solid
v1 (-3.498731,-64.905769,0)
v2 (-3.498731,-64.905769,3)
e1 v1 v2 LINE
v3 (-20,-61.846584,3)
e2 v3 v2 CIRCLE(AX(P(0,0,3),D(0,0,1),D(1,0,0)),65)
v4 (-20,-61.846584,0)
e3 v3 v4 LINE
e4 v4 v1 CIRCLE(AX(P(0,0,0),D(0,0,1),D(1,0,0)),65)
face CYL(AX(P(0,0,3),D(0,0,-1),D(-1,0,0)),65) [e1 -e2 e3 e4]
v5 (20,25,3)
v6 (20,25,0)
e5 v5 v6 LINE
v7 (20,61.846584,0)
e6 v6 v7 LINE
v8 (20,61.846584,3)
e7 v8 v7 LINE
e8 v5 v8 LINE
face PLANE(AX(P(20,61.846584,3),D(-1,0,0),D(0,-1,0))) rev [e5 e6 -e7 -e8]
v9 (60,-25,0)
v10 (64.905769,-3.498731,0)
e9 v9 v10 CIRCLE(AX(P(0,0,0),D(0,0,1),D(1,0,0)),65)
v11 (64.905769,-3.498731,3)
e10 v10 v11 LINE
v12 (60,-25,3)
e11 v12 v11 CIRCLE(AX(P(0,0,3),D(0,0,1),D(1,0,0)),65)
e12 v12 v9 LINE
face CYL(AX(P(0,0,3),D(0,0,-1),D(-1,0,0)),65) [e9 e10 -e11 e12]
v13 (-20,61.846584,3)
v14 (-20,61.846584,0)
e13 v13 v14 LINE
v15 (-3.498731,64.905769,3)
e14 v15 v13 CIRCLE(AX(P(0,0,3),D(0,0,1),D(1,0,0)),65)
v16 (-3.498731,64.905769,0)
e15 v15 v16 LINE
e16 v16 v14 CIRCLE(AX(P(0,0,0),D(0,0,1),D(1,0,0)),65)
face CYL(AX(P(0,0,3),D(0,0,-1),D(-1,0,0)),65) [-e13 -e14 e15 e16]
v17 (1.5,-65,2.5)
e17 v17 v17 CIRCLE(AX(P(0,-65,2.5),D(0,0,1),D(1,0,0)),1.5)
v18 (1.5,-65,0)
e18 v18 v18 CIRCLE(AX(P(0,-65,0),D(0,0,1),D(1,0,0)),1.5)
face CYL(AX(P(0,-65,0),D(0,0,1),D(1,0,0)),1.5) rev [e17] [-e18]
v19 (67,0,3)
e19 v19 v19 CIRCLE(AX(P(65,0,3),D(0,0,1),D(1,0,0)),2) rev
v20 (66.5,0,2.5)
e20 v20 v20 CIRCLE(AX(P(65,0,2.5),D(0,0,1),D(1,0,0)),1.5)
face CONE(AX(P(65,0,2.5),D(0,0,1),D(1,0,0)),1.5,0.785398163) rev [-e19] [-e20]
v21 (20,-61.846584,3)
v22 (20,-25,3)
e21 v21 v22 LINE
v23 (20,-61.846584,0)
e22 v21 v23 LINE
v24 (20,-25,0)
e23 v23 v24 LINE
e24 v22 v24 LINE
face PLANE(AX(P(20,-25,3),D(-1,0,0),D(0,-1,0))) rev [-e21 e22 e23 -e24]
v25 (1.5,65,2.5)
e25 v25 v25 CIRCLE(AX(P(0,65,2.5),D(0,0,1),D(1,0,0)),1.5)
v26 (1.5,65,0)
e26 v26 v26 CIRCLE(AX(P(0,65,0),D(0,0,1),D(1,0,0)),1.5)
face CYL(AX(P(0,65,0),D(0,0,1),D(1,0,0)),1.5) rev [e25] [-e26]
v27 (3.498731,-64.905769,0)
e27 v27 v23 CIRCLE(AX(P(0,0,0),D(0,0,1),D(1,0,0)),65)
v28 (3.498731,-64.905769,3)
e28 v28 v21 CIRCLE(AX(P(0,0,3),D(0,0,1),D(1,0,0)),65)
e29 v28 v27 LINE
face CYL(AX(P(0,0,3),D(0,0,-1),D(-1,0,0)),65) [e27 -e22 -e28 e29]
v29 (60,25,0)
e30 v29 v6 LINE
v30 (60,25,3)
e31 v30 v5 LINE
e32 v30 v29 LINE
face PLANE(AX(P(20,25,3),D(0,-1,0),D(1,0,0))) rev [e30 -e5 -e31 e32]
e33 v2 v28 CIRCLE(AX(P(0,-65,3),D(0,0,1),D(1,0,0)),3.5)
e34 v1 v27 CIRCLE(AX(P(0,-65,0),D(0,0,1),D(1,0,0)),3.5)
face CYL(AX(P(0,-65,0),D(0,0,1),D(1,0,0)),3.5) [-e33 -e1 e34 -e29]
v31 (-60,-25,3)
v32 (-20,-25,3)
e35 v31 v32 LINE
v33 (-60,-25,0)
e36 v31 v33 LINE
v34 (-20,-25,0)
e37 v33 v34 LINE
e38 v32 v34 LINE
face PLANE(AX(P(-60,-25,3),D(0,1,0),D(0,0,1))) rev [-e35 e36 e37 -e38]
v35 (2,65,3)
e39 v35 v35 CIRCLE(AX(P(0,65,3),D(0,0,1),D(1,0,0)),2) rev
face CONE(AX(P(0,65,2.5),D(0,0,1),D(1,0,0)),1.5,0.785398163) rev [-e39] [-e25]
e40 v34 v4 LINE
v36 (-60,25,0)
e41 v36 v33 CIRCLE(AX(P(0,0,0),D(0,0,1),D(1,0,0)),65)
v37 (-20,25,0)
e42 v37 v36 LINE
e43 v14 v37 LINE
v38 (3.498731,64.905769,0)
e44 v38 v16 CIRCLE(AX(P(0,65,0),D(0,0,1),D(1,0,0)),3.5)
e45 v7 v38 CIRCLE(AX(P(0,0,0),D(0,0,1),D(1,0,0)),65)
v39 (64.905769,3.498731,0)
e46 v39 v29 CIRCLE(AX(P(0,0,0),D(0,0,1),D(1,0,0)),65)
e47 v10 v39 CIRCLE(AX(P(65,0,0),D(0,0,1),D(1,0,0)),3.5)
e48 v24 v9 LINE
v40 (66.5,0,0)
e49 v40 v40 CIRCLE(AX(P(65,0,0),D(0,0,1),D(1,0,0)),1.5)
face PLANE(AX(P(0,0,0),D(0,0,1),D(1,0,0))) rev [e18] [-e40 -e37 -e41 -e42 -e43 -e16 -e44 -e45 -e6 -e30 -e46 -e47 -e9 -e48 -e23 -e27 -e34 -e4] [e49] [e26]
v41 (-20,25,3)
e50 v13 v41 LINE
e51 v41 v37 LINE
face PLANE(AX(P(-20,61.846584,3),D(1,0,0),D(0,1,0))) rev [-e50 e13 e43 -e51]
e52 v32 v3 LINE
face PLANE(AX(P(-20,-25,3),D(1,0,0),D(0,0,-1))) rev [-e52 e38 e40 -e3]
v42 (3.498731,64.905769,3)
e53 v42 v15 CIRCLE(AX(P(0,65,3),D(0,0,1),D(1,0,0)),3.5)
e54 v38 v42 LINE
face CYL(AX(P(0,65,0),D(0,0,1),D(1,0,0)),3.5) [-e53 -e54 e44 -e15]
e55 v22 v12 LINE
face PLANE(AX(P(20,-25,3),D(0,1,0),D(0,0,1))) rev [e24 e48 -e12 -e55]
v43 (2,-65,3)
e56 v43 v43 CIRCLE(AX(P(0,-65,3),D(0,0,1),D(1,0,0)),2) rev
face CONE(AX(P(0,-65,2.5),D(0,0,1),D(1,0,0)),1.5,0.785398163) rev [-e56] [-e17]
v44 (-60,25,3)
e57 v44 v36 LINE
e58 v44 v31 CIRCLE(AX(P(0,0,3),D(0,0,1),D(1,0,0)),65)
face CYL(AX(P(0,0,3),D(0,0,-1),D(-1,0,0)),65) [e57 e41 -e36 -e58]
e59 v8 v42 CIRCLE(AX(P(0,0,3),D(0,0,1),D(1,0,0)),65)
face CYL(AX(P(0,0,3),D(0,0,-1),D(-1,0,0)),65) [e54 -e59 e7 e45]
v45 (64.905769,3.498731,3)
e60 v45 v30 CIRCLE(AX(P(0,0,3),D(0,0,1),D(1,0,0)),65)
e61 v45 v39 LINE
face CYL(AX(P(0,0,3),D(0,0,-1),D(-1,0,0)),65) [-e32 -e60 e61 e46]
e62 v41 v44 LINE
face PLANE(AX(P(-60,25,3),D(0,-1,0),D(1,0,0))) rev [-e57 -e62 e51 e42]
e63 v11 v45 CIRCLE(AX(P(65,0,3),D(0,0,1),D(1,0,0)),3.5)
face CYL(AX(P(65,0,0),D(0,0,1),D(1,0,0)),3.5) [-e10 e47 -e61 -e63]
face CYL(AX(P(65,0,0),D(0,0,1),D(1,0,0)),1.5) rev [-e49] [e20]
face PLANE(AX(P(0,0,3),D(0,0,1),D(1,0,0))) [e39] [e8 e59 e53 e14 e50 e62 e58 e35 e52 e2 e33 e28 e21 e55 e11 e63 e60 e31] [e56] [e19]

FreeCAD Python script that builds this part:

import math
import FreeCAD as App
import Part
import Sketcher

V = App.Vector


def edges_at(feature, points):
    """Names of the edges that pass closest to the given points."""
    edges = feature.Shape.Edges
    near = lambda p: min(range(len(edges)), key=lambda i: edges[i].distToShape(Part.Vertex(*p))[0])
    return sorted({f"Edge{near(p) + 1}" for p in points})

doc = App.newDocument("Part")
body = doc.addObject("PartDesign::Body", "Body")

# Sketch on XY plane
sketch1 = body.newObject("Sketcher::SketchObject", "Sketch")
sketch1.AttachmentSupport = (doc.getObject("XY_Plane"), [""])
sketch1.MapMode = "FlatFace"
sketch1.addGeometry([
    Part.LineSegment(V(20, -61.846584, 0), V(20, -25, 0)),  # 0
    Part.LineSegment(V(20, -25, 0), V(60, -25, 0)),  # 1
    Part.ArcOfCircle(Part.Circle(V(0, 0, 0), V(0, 0, 1), 65), math.radians(-22.619865), math.radians(22.619865)),  # 2
    Part.LineSegment(V(60, 25, 0), V(20, 25, 0)),  # 3
    Part.LineSegment(V(20, 25, 0), V(20, 61.846584, 0)),  # 4
    Part.ArcOfCircle(Part.Circle(V(0, 0, 0), V(0, 0, 1), 65), math.radians(72.079787), math.radians(107.920213)),  # 5
    Part.LineSegment(V(-20, 61.846584, 0), V(-20, 25, 0)),  # 6
    Part.LineSegment(V(-20, 25, 0), V(-60, 25, 0)),  # 7
    Part.ArcOfCircle(Part.Circle(V(0, 0, 0), V(0, 0, 1), 65), math.radians(157.380135), math.radians(202.619865)),  # 8
    Part.LineSegment(V(-60, -25, 0), V(-20, -25, 0)),  # 9
    Part.LineSegment(V(-20, -25, 0), V(-20, -61.846584, 0)),  # 10
    Part.ArcOfCircle(Part.Circle(V(0, 0, 0), V(0, 0, 1), 65), math.radians(-107.920213), math.radians(-72.079787)),  # 11
], False)
sketch1.addConstraint([
    Sketcher.Constraint("Coincident", 0, 2, 1, 1),
    Sketcher.Constraint("Coincident", 1, 2, 2, 1),
    Sketcher.Constraint("Coincident", 2, 2, 3, 1),
    Sketcher.Constraint("Coincident", 3, 2, 4, 1),
    Sketcher.Constraint("Coincident", 4, 2, 5, 1),
    Sketcher.Constraint("Coincident", 5, 2, 6, 1),
    Sketcher.Constraint("Coincident", 6, 2, 7, 1),
    Sketcher.Constraint("Coincident", 7, 2, 8, 1),
    Sketcher.Constraint("Coincident", 8, 2, 9, 1),
    Sketcher.Constraint("Coincident", 9, 2, 10, 1),
    Sketcher.Constraint("Coincident", 10, 2, 11, 1),
    Sketcher.Constraint("Coincident", 11, 2, 0, 1),
    Sketcher.Constraint("Vertical", 0),
    Sketcher.Constraint("Horizontal", 1),
    Sketcher.Constraint("Horizontal", 3),
    Sketcher.Constraint("Vertical", 4),
    Sketcher.Constraint("Vertical", 6),
    Sketcher.Constraint("Horizontal", 7),
    Sketcher.Constraint("Horizontal", 9),
    Sketcher.Constraint("Vertical", 10),
    Sketcher.Constraint("Coincident", 2, 3, -1, 1),
    Sketcher.Constraint("Coincident", 5, 3, -1, 1),
    Sketcher.Constraint("Coincident", 8, 3, -1, 1),
    Sketcher.Constraint("Coincident", 11, 3, -1, 1),
    Sketcher.Constraint("Equal", 2, 5),
    Sketcher.Constraint("Equal", 5, 8),
    Sketcher.Constraint("Equal", 8, 11),
    Sketcher.Constraint("Symmetric", 0, 2, 6, 2, -1, 1),
    Sketcher.Constraint("Symmetric", 3, 2, 9, 2, -1, 1),
    Sketcher.Constraint("Symmetric", 3, 2, 6, 2, -2),
    Sketcher.Constraint("Radius", 2, 65.0),
    Sketcher.Constraint("DistanceX", 1, 1, 1, 2, 40.0),
    Sketcher.Constraint("DistanceX", -1, 1, 0, 2, 20.0),
])
pad1 = body.newObject("PartDesign::Pad", "Pad")
pad1.Profile = sketch1
pad1.Length = 3

# Sketch on XY plane
sketch2 = body.newObject("Sketcher::SketchObject", "Sketch001")
sketch2.AttachmentSupport = (doc.getObject("XY_Plane"), [""])
sketch2.MapMode = "FlatFace"
sketch2.AttachmentOffset = App.Placement(V(0, 0, 3), App.Rotation())
sketch2.addGeometry([
    Part.Circle(V(65, 0, 0), V(0, 0, 1), 3.5),
    Part.Circle(V(0, 65, 0), V(0, 0, 1), 3.5),
    Part.Circle(V(0, -65, 0), V(0, 0, 1), 3.5),
], False)
sketch2.addConstraint([
    Sketcher.Constraint("Equal", 0, 1),
    Sketcher.Constraint("Equal", 1, 2),
    Sketcher.Constraint("Symmetric", 1, 3, 2, 3, -1, 1),
    Sketcher.Constraint("PointOnObject", 0, 3, -1),
    Sketcher.Constraint("PointOnObject", 1, 3, -2),
    Sketcher.Constraint("Diameter", 0, 7.0),
    Sketcher.Constraint("DistanceX", -1, 1, 0, 3, 65.0),
    Sketcher.Constraint("DistanceY", -1, 1, 1, 3, 65.0),
])
pad2 = body.newObject("PartDesign::Pad", "Pad001")
pad2.Profile = sketch2
pad2.Length = 3
pad2.Reversed = True

# Sketch on XY plane
sketch3 = body.newObject("Sketcher::SketchObject", "Sketch002")
sketch3.AttachmentSupport = (doc.getObject("XY_Plane"), [""])
sketch3.MapMode = "FlatFace"
sketch3.AttachmentOffset = App.Placement(V(0, 0, 3), App.Rotation())
sketch3.addGeometry([
    Part.Circle(V(0, 65, 0), V(0, 0, 1), 1.5),
    Part.Circle(V(65, 0, 0), V(0, 0, 1), 1.5),
    Part.Circle(V(0, -65, 0), V(0, 0, 1), 1.5),
], False)
sketch3.addConstraint([
    Sketcher.Constraint("Equal", 0, 1),
    Sketcher.Constraint("Equal", 1, 2),
    Sketcher.Constraint("Symmetric", 0, 3, 2, 3, -1, 1),
    Sketcher.Constraint("PointOnObject", 0, 3, -2),
    Sketcher.Constraint("PointOnObject", 1, 3, -1),
    Sketcher.Constraint("Diameter", 0, 3.0),
    Sketcher.Constraint("DistanceY", -1, 1, 0, 3, 65.0),
    Sketcher.Constraint("DistanceX", -1, 1, 1, 3, 65.0),
])
pocket1 = body.newObject("PartDesign::Pocket", "Pocket")
pocket1.Profile = sketch3
pocket1.Length = 3
doc.recompute()

chamfer = body.newObject("PartDesign::Chamfer", "Chamfer")
chamfer.Base = (pocket1, edges_at(pocket1, [(-1.5, 65, 3), (63.5, 0, 3), (-1.5, -65, 3)]))
chamfer.Size = 0.5

doc.recompute()
